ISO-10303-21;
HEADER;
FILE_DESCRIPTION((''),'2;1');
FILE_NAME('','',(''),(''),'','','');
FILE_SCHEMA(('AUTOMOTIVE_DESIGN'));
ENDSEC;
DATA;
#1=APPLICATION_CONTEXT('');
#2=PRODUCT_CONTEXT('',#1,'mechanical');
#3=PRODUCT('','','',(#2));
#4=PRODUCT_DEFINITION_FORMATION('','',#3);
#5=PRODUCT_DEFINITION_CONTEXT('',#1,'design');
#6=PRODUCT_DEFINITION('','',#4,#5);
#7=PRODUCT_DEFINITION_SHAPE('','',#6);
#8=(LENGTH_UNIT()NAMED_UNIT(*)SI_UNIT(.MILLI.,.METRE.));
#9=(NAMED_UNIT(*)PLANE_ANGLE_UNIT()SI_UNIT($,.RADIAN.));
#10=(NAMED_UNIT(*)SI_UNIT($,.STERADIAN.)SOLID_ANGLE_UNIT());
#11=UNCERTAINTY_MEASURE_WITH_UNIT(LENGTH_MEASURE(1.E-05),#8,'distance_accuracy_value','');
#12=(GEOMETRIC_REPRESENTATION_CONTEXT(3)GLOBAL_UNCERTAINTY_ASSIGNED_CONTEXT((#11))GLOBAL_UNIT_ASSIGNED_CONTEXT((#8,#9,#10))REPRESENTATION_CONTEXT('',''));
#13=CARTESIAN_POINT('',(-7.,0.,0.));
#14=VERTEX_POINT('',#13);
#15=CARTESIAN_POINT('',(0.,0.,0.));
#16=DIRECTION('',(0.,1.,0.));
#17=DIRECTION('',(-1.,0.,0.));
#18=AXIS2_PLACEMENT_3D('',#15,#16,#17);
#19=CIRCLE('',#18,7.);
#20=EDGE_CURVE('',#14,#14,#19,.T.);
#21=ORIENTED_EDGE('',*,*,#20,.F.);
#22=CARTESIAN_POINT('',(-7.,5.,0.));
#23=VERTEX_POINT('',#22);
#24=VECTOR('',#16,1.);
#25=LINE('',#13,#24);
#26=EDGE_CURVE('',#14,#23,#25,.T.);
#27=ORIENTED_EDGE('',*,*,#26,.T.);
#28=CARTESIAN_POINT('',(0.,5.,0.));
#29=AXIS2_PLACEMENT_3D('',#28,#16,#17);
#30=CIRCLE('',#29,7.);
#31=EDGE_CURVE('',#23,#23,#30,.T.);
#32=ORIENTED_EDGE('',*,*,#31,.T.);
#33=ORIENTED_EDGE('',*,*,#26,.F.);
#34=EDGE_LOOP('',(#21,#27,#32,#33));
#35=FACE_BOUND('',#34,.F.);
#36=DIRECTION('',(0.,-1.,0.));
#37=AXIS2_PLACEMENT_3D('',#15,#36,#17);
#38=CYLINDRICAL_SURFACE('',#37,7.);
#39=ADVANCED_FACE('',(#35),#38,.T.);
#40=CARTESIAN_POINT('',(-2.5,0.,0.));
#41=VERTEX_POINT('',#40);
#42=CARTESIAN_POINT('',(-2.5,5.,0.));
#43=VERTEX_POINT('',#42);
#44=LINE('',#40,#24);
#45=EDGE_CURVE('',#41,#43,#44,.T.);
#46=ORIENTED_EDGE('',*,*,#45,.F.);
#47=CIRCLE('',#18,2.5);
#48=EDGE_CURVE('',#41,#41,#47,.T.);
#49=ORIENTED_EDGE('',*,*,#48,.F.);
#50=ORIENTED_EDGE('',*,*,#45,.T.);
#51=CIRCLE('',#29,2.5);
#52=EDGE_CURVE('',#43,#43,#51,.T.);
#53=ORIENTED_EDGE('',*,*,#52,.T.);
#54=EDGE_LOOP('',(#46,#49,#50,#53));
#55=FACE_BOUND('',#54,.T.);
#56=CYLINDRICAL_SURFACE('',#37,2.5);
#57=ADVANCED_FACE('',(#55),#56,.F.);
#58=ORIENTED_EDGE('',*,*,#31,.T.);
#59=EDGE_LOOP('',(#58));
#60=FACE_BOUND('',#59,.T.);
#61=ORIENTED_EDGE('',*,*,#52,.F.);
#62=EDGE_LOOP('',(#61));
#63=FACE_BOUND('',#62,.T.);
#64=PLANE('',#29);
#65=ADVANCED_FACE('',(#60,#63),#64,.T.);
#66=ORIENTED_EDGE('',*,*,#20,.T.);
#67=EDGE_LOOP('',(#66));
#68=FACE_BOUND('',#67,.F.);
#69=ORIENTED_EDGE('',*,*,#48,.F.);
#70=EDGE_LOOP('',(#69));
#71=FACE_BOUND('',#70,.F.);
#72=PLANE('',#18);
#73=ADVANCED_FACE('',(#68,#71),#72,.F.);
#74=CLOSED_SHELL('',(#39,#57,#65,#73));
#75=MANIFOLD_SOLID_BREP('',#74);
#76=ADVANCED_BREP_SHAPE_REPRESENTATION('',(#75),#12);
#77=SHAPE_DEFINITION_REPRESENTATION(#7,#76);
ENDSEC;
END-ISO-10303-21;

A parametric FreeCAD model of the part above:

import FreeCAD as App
import Part
import Sketcher
from FreeCAD import Vector

doc = App.newDocument("Part")
params = doc.addObject("Spreadsheet::Sheet", "Params")
for row, (alias, value) in enumerate([
    ("sketch1_diameter", "14 mm"),
    ("sketch1_diameter2", "5 mm"),
    ("pad1_length", "5 mm"),
], start=1):
    params.set(f"A{row}", alias)
    params.set(f"B{row}", "=" + value)
    params.setAlias(f"B{row}", alias)

body = doc.addObject("PartDesign::Body", "Body")

# Sketch on XZ plane
sketch1 = body.newObject("Sketcher::SketchObject", "Sketch")
sketch1.AttachmentSupport = (doc.getObject("XZ_Plane"), [""])
sketch1.MapMode = "FlatFace"
sketch1.addGeometry([
    Part.Circle(Vector(0, 0, 0), Vector(0, 0, 1), 7),
    Part.Circle(Vector(0, 0, 0), Vector(0, 0, 1), 2.5),
], False)
sketch1.addConstraint([
    Sketcher.Constraint("Coincident", 0, 3, -1, 1),
    Sketcher.Constraint("Coincident", 1, 3, -1, 1),
    Sketcher.Constraint("Diameter", 0, 14.0),
    Sketcher.Constraint("Diameter", 1, 5.0),
])
sketch1.setExpression("Constraints[2]", "Params.sketch1_diameter")
sketch1.setExpression("Constraints[3]", "Params.sketch1_diameter2")
pad1 = body.newObject("PartDesign::Pad", "Pad")
pad1.Profile = sketch1
pad1.setExpression("Length", "Params.pad1_length")
pad1.Reversed = True

doc.recompute()
